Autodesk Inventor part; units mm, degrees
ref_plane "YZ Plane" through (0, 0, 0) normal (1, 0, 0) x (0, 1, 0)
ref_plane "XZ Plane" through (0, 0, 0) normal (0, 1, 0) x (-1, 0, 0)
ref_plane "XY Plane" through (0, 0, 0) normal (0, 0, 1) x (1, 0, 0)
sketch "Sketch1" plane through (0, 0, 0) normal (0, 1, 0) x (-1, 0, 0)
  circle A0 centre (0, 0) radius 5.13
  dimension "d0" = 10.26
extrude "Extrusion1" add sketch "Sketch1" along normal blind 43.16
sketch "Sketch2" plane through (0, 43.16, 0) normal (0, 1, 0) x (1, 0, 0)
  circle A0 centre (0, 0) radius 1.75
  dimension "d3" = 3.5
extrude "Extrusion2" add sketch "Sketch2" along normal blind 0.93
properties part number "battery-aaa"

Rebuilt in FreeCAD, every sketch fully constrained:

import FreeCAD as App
import Part
import Sketcher

V = App.Vector

doc = App.newDocument("Part")
body = doc.addObject("PartDesign::Body", "Body")

# Sketch on XZ plane
sketch1 = doc.addObject("Sketcher::SketchObject", "Sketch")
body.addObject(sketch1)
sketch1.AttachmentSupport = (doc.XZ_Plane, [""])
sketch1.MapMode = "FlatFace"
sketch1.addGeometry(Part.Circle(V(0, 0, 0), V(0, 0, 1), 5), False)
sketch1.addConstraint([
    Sketcher.Constraint("Coincident", 0, 3, -1, 1),
    Sketcher.Constraint("Diameter", 0, 10.26),
])
pad1 = doc.addObject("PartDesign::Pad", "Pad")
body.addObject(pad1)
pad1.Profile = sketch1
pad1.Length = 43.16
pad1.Reversed = True

# Sketch on XZ plane
sketch2 = doc.addObject("Sketcher::SketchObject", "Sketch001")
body.addObject(sketch2)
sketch2.AttachmentSupport = (doc.XZ_Plane, [""])
sketch2.MapMode = "FlatFace"
sketch2.AttachmentOffset = App.Placement(V(0, 0, -43.16), App.Rotation())
sketch2.addGeometry(Part.Circle(V(0, 0, 0), V(0, 0, 1), 1.8), False)
sketch2.addConstraint([
    Sketcher.Constraint("Coincident", 0, 3, -1, 1),
    Sketcher.Constraint("Diameter", 0, 3.5),
])
pad2 = doc.addObject("PartDesign::Pad", "Pad001")
body.addObject(pad2)
pad2.Profile = sketch2
pad2.Length = 0.93
pad2.Reversed = True

doc.recompute()
